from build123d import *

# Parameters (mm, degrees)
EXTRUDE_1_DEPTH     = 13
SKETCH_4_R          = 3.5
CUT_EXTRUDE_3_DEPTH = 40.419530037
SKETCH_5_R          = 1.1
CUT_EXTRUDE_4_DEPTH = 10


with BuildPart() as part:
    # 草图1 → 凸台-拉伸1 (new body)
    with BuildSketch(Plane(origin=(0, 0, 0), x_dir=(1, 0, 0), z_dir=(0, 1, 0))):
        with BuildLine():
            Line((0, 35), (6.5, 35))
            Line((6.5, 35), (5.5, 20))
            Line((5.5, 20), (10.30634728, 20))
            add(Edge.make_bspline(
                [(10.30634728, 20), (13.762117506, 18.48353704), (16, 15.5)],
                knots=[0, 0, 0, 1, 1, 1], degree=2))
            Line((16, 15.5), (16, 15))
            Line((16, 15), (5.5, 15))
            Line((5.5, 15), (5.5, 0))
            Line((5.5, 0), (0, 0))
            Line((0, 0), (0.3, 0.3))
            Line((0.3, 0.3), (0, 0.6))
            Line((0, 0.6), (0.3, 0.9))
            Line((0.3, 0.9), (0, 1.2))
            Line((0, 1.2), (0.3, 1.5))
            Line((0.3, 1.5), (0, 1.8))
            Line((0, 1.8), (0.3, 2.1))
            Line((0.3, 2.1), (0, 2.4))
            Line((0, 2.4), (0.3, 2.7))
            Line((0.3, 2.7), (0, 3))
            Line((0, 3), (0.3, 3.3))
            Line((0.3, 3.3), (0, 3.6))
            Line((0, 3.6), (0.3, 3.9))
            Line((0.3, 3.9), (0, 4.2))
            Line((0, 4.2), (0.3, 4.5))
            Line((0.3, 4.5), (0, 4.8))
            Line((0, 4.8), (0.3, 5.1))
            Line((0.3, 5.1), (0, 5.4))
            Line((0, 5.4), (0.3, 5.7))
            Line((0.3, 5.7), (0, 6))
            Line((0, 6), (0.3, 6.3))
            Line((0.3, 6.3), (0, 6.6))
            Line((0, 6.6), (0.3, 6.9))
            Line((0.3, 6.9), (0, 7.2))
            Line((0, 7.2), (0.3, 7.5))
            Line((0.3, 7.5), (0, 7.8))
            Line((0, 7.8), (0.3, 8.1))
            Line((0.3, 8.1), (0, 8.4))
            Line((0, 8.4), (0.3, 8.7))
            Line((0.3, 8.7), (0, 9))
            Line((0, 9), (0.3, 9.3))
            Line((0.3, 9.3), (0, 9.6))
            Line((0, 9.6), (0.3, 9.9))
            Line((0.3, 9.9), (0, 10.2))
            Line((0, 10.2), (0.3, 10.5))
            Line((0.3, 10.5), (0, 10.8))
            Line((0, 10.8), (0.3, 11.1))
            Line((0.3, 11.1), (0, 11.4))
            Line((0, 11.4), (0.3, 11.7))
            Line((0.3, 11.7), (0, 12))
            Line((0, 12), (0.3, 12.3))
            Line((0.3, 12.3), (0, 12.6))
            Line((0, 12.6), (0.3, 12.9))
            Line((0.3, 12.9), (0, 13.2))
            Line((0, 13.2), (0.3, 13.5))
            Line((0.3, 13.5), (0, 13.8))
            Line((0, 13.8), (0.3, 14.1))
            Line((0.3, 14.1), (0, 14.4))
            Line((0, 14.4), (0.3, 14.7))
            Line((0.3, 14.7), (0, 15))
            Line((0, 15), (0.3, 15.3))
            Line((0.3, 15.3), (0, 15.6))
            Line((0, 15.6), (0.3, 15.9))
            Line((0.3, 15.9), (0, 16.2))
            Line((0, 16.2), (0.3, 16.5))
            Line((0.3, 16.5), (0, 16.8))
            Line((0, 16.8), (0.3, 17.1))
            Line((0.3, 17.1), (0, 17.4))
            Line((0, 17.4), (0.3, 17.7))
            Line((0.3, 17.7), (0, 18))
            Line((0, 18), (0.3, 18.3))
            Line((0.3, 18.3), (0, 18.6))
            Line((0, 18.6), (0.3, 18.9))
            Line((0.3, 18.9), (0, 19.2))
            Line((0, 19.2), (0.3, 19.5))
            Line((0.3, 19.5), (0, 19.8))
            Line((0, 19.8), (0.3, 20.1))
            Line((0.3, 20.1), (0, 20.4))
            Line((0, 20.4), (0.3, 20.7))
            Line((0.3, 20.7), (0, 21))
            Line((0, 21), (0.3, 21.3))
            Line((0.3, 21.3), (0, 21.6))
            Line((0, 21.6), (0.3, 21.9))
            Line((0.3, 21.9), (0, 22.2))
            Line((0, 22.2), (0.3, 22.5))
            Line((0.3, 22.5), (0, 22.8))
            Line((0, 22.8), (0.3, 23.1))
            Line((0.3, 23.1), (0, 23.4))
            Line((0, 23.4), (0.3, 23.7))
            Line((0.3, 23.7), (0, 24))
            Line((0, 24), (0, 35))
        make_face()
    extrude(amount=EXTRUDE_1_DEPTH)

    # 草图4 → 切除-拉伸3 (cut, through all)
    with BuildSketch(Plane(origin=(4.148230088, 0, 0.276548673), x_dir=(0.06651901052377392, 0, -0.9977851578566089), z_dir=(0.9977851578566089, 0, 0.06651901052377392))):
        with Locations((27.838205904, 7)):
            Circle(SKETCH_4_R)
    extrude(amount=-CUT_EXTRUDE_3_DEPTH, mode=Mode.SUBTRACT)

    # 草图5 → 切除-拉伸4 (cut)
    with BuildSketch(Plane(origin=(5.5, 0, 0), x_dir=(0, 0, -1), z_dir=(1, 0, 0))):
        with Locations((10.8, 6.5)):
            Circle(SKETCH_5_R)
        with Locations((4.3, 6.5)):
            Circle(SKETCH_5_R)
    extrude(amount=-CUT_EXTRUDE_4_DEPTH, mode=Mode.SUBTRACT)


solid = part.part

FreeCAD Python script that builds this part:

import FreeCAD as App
import Part
import Sketcher
from FreeCAD import Vector
Q = App.Units.Quantity

doc = App.newDocument("Part")
body = doc.addObject("PartDesign::Body", "Body")

sketch1 = body.newObject("Sketcher::SketchObject", "Sketch")
sketch1.AttachmentSupport = (doc.getObject("XZ_Plane"), [""])
sketch1.MapMode = "FlatFace"
sketch1.addGeometry([
    Part.LineSegment(Vector(6.5, -35, 0), Vector(0, -35, 0)),
    Part.LineSegment(Vector(0, -35, 0), Vector(0, -24, 0)),
    Part.LineSegment(Vector(0, -24, 0), Vector(0.3, -23.7, 0)),
    Part.LineSegment(Vector(0.3, -23.7, 0), Vector(0, -23.4, 0)),
    Part.LineSegment(Vector(0, -23.4, 0), Vector(0.3, -23.1, 0)),
    Part.LineSegment(Vector(0.3, -23.1, 0), Vector(0, -22.8, 0)),
    Part.LineSegment(Vector(0, -22.8, 0), Vector(0.3, -22.5, 0)),
    Part.LineSegment(Vector(0.3, -22.5, 0), Vector(0, -22.2, 0)),
    Part.LineSegment(Vector(0, -22.2, 0), Vector(0.3, -21.9, 0)),
    Part.LineSegment(Vector(0.3, -21.9, 0), Vector(0, -21.6, 0)),
    Part.LineSegment(Vector(0, -21.6, 0), Vector(0.3, -21.3, 0)),
    Part.LineSegment(Vector(0.3, -21.3, 0), Vector(0, -21, 0)),
    Part.LineSegment(Vector(0, -21, 0), Vector(0.3, -20.7, 0)),
    Part.LineSegment(Vector(0.3, -20.7, 0), Vector(0, -20.4, 0)),
    Part.LineSegment(Vector(0, -20.4, 0), Vector(0.3, -20.1, 0)),
    Part.LineSegment(Vector(0.3, -20.1, 0), Vector(0, -19.8, 0)),
    Part.LineSegment(Vector(0, -19.8, 0), Vector(0.3, -19.5, 0)),
    Part.LineSegment(Vector(0.3, -19.5, 0), Vector(0, -19.2, 0)),
    Part.LineSegment(Vector(0, -19.2, 0), Vector(0.3, -18.9, 0)),
    Part.LineSegment(Vector(0.3, -18.9, 0), Vector(0, -18.6, 0)),
    Part.LineSegment(Vector(0, -18.6, 0), Vector(0.3, -18.3, 0)),
    Part.LineSegment(Vector(0.3, -18.3, 0), Vector(0, -18, 0)),
    Part.LineSegment(Vector(0, -18, 0), Vector(0.3, -17.7, 0)),
    Part.LineSegment(Vector(0.3, -17.7, 0), Vector(0, -17.4, 0)),
    Part.LineSegment(Vector(0, -17.4, 0), Vector(0.3, -17.1, 0)),
    Part.LineSegment(Vector(0.3, -17.1, 0), Vector(0, -16.8, 0)),
    Part.LineSegment(Vector(0, -16.8, 0), Vector(0.3, -16.5, 0)),
    Part.LineSegment(Vector(0.3, -16.5, 0), Vector(0, -16.2, 0)),
    Part.LineSegment(Vector(0, -16.2, 0), Vector(0.3, -15.9, 0)),
    Part.LineSegment(Vector(0.3, -15.9, 0), Vector(0, -15.6, 0)),
    Part.LineSegment(Vector(0, -15.6, 0), Vector(0.3, -15.3, 0)),
    Part.LineSegment(Vector(0.3, -15.3, 0), Vector(0, -15, 0)),
    Part.LineSegment(Vector(0, -15, 0), Vector(0.3, -14.7, 0)),
    Part.LineSegment(Vector(0.3, -14.7, 0), Vector(0, -14.4, 0)),
    Part.LineSegment(Vector(0, -14.4, 0), Vector(0.3, -14.1, 0)),
    Part.LineSegment(Vector(0.3, -14.1, 0), Vector(0, -13.8, 0)),
    Part.LineSegment(Vector(0, -13.8, 0), Vector(0.3, -13.5, 0)),
    Part.LineSegment(Vector(0.3, -13.5, 0), Vector(0, -13.2, 0)),
    Part.LineSegment(Vector(0, -13.2, 0), Vector(0.3, -12.9, 0)),
    Part.LineSegment(Vector(0.3, -12.9, 0), Vector(0, -12.6, 0)),
    Part.LineSegment(Vector(0, -12.6, 0), Vector(0.3, -12.3, 0)),
    Part.LineSegment(Vector(0.3, -12.3, 0), Vector(0, -12, 0)),
    Part.LineSegment(Vector(0, -12, 0), Vector(0.3, -11.7, 0)),
    Part.LineSegment(Vector(0.3, -11.7, 0), Vector(0, -11.4, 0)),
    Part.LineSegment(Vector(0, -11.4, 0), Vector(0.3, -11.1, 0)),
    Part.LineSegment(Vector(0.3, -11.1, 0), Vector(0, -10.8, 0)),
    Part.LineSegment(Vector(0, -10.8, 0), Vector(0.3, -10.5, 0)),
    Part.LineSegment(Vector(0.3, -10.5, 0), Vector(0, -10.2, 0)),
    Part.LineSegment(Vector(0, -10.2, 0), Vector(0.3, -9.9, 0)),
    Part.LineSegment(Vector(0.3, -9.9, 0), Vector(0, -9.6, 0)),
    Part.LineSegment(Vector(0, -9.6, 0), Vector(0.3, -9.3, 0)),
    Part.LineSegment(Vector(0.3, -9.3, 0), Vector(0, -9, 0)),
    Part.LineSegment(Vector(0, -9, 0), Vector(0.3, -8.7, 0)),
    Part.LineSegment(Vector(0.3, -8.7, 0), Vector(0, -8.4, 0)),
    Part.LineSegment(Vector(0, -8.4, 0), Vector(0.3, -8.1, 0)),
    Part.LineSegment(Vector(0.3, -8.1, 0), Vector(0, -7.8, 0)),
    Part.LineSegment(Vector(0, -7.8, 0), Vector(0.3, -7.5, 0)),
    Part.LineSegment(Vector(0.3, -7.5, 0), Vector(0, -7.2, 0)),
    Part.LineSegment(Vector(0, -7.2, 0), Vector(0.3, -6.9, 0)),
    Part.LineSegment(Vector(0.3, -6.9, 0), Vector(0, -6.6, 0)),
    Part.LineSegment(Vector(0, -6.6, 0), Vector(0.3, -6.3, 0)),
    Part.LineSegment(Vector(0.3, -6.3, 0), Vector(0, -6, 0)),
    Part.LineSegment(Vector(0, -6, 0), Vector(0.3, -5.7, 0)),
    Part.LineSegment(Vector(0.3, -5.7, 0), Vector(0, -5.4, 0)),
    Part.LineSegment(Vector(0, -5.4, 0), Vector(0.3, -5.1, 0)),
    Part.LineSegment(Vector(0.3, -5.1, 0), Vector(0, -4.8, 0)),
    Part.LineSegment(Vector(0, -4.8, 0), Vector(0.3, -4.5, 0)),
    Part.LineSegment(Vector(0.3, -4.5, 0), Vector(0, -4.2, 0)),
    Part.LineSegment(Vector(0, -4.2, 0), Vector(0.3, -3.9, 0)),
    Part.LineSegment(Vector(0.3, -3.9, 0), Vector(0, -3.6, 0)),
    Part.LineSegment(Vector(0, -3.6, 0), Vector(0.3, -3.3, 0)),
    Part.LineSegment(Vector(0.3, -3.3, 0), Vector(0, -3, 0)),
    Part.LineSegment(Vector(0, -3, 0), Vector(0.3, -2.7, 0)),
    Part.LineSegment(Vector(0.3, -2.7, 0), Vector(0, -2.4, 0)),
    Part.LineSegment(Vector(0, -2.4, 0), Vector(0.3, -2.1, 0)),
    Part.LineSegment(Vector(0.3, -2.1, 0), Vector(0, -1.8, 0)),
    Part.LineSegment(Vector(0, -1.8, 0), Vector(0.3, -1.5, 0)),
    Part.LineSegment(Vector(0.3, -1.5, 0), Vector(0, -1.2, 0)),
    Part.LineSegment(Vector(0, -1.2, 0), Vector(0.3, -0.9, 0)),
    Part.LineSegment(Vector(0.3, -0.9, 0), Vector(0, -0.6, 0)),
    Part.LineSegment(Vector(0, -0.6, 0), Vector(0.3, -0.3, 0)),
    Part.LineSegment(Vector(0.3, -0.3, 0), Vector(0, 0, 0)),
    Part.LineSegment(Vector(0, 0, 0), Vector(5.5, 0, 0)),
    Part.LineSegment(Vector(5.5, 0, 0), Vector(5.5, -15, 0)),
    Part.LineSegment(Vector(5.5, -15, 0), Vector(16, -15, 0)),
    Part.LineSegment(Vector(16, -15, 0), Vector(16, -15.5, 0)),
    Part.BSplineCurve([Vector(10.306347, -20, 0), Vector(13.762118, -18.483537, 0), Vector(16, -15.5, 0)], [3, 3], [0, 1], False, 2, [1, 1, 1], False),
    Part.LineSegment(Vector(10.306347, -20, 0), Vector(5.5, -20, 0)),
    Part.LineSegment(Vector(5.5, -20, 0), Vector(6.5, -35, 0)),
], False)
sketch1.addConstraint([
    Sketcher.Constraint("Block", 86),
    Sketcher.Constraint("Coincident", 0, 2, 1, 1),
    Sketcher.Constraint("Coincident", 1, 2, 2, 1),
    Sketcher.Constraint("Coincident", 2, 2, 3, 1),
    Sketcher.Constraint("Coincident", 3, 2, 4, 1),
    Sketcher.Constraint("Coincident", 4, 2, 5, 1),
    Sketcher.Constraint("Coincident", 5, 2, 6, 1),
    Sketcher.Constraint("Coincident", 6, 2, 7, 1),
    Sketcher.Constraint("Coincident", 7, 2, 8, 1),
    Sketcher.Constraint("Coincident", 8, 2, 9, 1),
    Sketcher.Constraint("Coincident", 9, 2, 10, 1),
    Sketcher.Constraint("Coincident", 10, 2, 11, 1),
    Sketcher.Constraint("Coincident", 11, 2, 12, 1),
    Sketcher.Constraint("Coincident", 12, 2, 13, 1),
    Sketcher.Constraint("Coincident", 13, 2, 14, 1),
    Sketcher.Constraint("Coincident", 14, 2, 15, 1),
    Sketcher.Constraint("Coincident", 15, 2, 16, 1),
    Sketcher.Constraint("Coincident", 16, 2, 17, 1),
    Sketcher.Constraint("Coincident", 17, 2, 18, 1),
    Sketcher.Constraint("Coincident", 18, 2, 19, 1),
    Sketcher.Constraint("Coincident", 19, 2, 20, 1),
    Sketcher.Constraint("Coincident", 20, 2, 21, 1),
    Sketcher.Constraint("Coincident", 21, 2, 22, 1),
    Sketcher.Constraint("Coincident", 22, 2, 23, 1),
    Sketcher.Constraint("Coincident", 23, 2, 24, 1),
    Sketcher.Constraint("Coincident", 24, 2, 25, 1),
    Sketcher.Constraint("Coincident", 25, 2, 26, 1),
    Sketcher.Constraint("Coincident", 26, 2, 27, 1),
    Sketcher.Constraint("Coincident", 27, 2, 28, 1),
    Sketcher.Constraint("Coincident", 28, 2, 29, 1),
    Sketcher.Constraint("Coincident", 29, 2, 30, 1),
    Sketcher.Constraint("Coincident", 30, 2, 31, 1),
    Sketcher.Constraint("Coincident", 31, 2, 32, 1),
    Sketcher.Constraint("Coincident", 32, 2, 33, 1),
    Sketcher.Constraint("Coincident", 33, 2, 34, 1),
    Sketcher.Constraint("Coincident", 34, 2, 35, 1),
    Sketcher.Constraint("Coincident", 35, 2, 36, 1),
    Sketcher.Constraint("Coincident", 36, 2, 37, 1),
    Sketcher.Constraint("Coincident", 37, 2, 38, 1),
    Sketcher.Constraint("Coincident", 38, 2, 39, 1),
    Sketcher.Constraint("Coincident", 39, 2, 40, 1),
    Sketcher.Constraint("Coincident", 40, 2, 41, 1),
    Sketcher.Constraint("Coincident", 41, 2, 42, 1),
    Sketcher.Constraint("Coincident", 42, 2, 43, 1),
    Sketcher.Constraint("Coincident", 43, 2, 44, 1),
    Sketcher.Constraint("Coincident", 44, 2, 45, 1),
    Sketcher.Constraint("Coincident", 45, 2, 46, 1),
    Sketcher.Constraint("Coincident", 46, 2, 47, 1),
    Sketcher.Constraint("Coincident", 47, 2, 48, 1),
    Sketcher.Constraint("Coincident", 48, 2, 49, 1),
    Sketcher.Constraint("Coincident", 49, 2, 50, 1),
    Sketcher.Constraint("Coincident", 50, 2, 51, 1),
    Sketcher.Constraint("Coincident", 51, 2, 52, 1),
    Sketcher.Constraint("Coincident", 52, 2, 53, 1),
    Sketcher.Constraint("Coincident", 53, 2, 54, 1),
    Sketcher.Constraint("Coincident", 54, 2, 55, 1),
    Sketcher.Constraint("Coincident", 55, 2, 56, 1),
    Sketcher.Constraint("Coincident", 56, 2, 57, 1),
    Sketcher.Constraint("Coincident", 57, 2, 58, 1),
    Sketcher.Constraint("Coincident", 58, 2, 59, 1),
    Sketcher.Constraint("Coincident", 59, 2, 60, 1),
    Sketcher.Constraint("Coincident", 60, 2, 61, 1),
    Sketcher.Constraint("Coincident", 61, 2, 62, 1),
    Sketcher.Constraint("Coincident", 62, 2, 63, 1),
    Sketcher.Constraint("Coincident", 63, 2, 64, 1),
    Sketcher.Constraint("Coincident", 64, 2, 65, 1),
    Sketcher.Constraint("Coincident", 65, 2, 66, 1),
    Sketcher.Constraint("Coincident", 66, 2, 67, 1),
    Sketcher.Constraint("Coincident", 67, 2, 68, 1),
    Sketcher.Constraint("Coincident", 68, 2, 69, 1),
    Sketcher.Constraint("Coincident", 69, 2, 70, 1),
    Sketcher.Constraint("Coincident", 70, 2, 71, 1),
    Sketcher.Constraint("Coincident", 71, 2, 72, 1),
    Sketcher.Constraint("Coincident", 72, 2, 73, 1),
    Sketcher.Constraint("Coincident", 73, 2, 74, 1),
    Sketcher.Constraint("Coincident", 74, 2, 75, 1),
    Sketcher.Constraint("Coincident", 75, 2, 76, 1),
    Sketcher.Constraint("Coincident", 76, 2, 77, 1),
    Sketcher.Constraint("Coincident", 77, 2, 78, 1),
    Sketcher.Constraint("Coincident", 78, 2, 79, 1),
    Sketcher.Constraint("Coincident", 79, 2, 80, 1),
    Sketcher.Constraint("Coincident", 80, 2, 81, 1),
    Sketcher.Constraint("Coincident", 81, 2, 82, 1),
    Sketcher.Constraint("Coincident", 82, 2, 83, 1),
    Sketcher.Constraint("Coincident", 83, 2, 84, 1),
    Sketcher.Constraint("Coincident", 84, 2, 85, 1),
    Sketcher.Constraint("Coincident", 85, 2, 86, 2),
    Sketcher.Constraint("Coincident", 86, 1, 87, 1),
    Sketcher.Constraint("Coincident", 87, 2, 88, 1),
    Sketcher.Constraint("Coincident", 88, 2, 0, 1),
    Sketcher.Constraint("Horizontal", 0),
    Sketcher.Constraint("Vertical", 1),
    Sketcher.Constraint("Horizontal", 82),
    Sketcher.Constraint("Vertical", 83),
    Sketcher.Constraint("Horizontal", 84),
    Sketcher.Constraint("Vertical", 85),
    Sketcher.Constraint("Horizontal", 87),
    Sketcher.Constraint("Coincident", 81, 2, -1, 1),
    Sketcher.Constraint("PointOnObject", 0, 2, -2),
    Sketcher.Constraint("PointOnObject", 3, 2, -2),
    Sketcher.Constraint("PointOnObject", 5, 2, -2),
    Sketcher.Constraint("PointOnObject", 7, 2, -2),
    Sketcher.Constraint("PointOnObject", 9, 2, -2),
    Sketcher.Constraint("PointOnObject", 11, 2, -2),
    Sketcher.Constraint("PointOnObject", 13, 2, -2),
    Sketcher.Constraint("PointOnObject", 15, 2, -2),
    Sketcher.Constraint("PointOnObject", 17, 2, -2),
    Sketcher.Constraint("PointOnObject", 19, 2, -2),
    Sketcher.Constraint("PointOnObject", 21, 2, -2),
    Sketcher.Constraint("PointOnObject", 23, 2, -2),
    Sketcher.Constraint("PointOnObject", 25, 2, -2),
    Sketcher.Constraint("PointOnObject", 27, 2, -2),
    Sketcher.Constraint("PointOnObject", 29, 2, -2),
    Sketcher.Constraint("PointOnObject", 31, 2, -2),
    Sketcher.Constraint("PointOnObject", 33, 2, -2),
    Sketcher.Constraint("PointOnObject", 35, 2, -2),
    Sketcher.Constraint("PointOnObject", 37, 2, -2),
    Sketcher.Constraint("PointOnObject", 39, 2, -2),
    Sketcher.Constraint("PointOnObject", 41, 2, -2),
    Sketcher.Constraint("PointOnObject", 43, 2, -2),
    Sketcher.Constraint("PointOnObject", 45, 2, -2),
    Sketcher.Constraint("PointOnObject", 47, 2, -2),
    Sketcher.Constraint("PointOnObject", 49, 2, -2),
    Sketcher.Constraint("PointOnObject", 51, 2, -2),
    Sketcher.Constraint("PointOnObject", 53, 2, -2),
    Sketcher.Constraint("PointOnObject", 55, 2, -2),
    Sketcher.Constraint("PointOnObject", 57, 2, -2),
    Sketcher.Constraint("PointOnObject", 59, 2, -2),
    Sketcher.Constraint("PointOnObject", 61, 2, -2),
    Sketcher.Constraint("PointOnObject", 63, 2, -2),
    Sketcher.Constraint("PointOnObject", 65, 2, -2),
    Sketcher.Constraint("PointOnObject", 67, 2, -2),
    Sketcher.Constraint("PointOnObject", 69, 2, -2),
    Sketcher.Constraint("PointOnObject", 71, 2, -2),
    Sketcher.Constraint("PointOnObject", 73, 2, -2),
    Sketcher.Constraint("PointOnObject", 75, 2, -2),
    Sketcher.Constraint("PointOnObject", 77, 2, -2),
    Sketcher.Constraint("PointOnObject", 79, 2, -2),
    Sketcher.Constraint("Perpendicular", 2, 3),
    Sketcher.Constraint("Perpendicular", 3, 4),
    Sketcher.Constraint("Perpendicular", 4, 5),
    Sketcher.Constraint("Perpendicular", 5, 6),
    Sketcher.Constraint("Perpendicular", 6, 7),
    Sketcher.Constraint("Perpendicular", 7, 8),
    Sketcher.Constraint("Perpendicular", 8, 9),
    Sketcher.Constraint("Perpendicular", 9, 10),
    Sketcher.Constraint("Perpendicular", 10, 11),
    Sketcher.Constraint("Perpendicular", 11, 12),
    Sketcher.Constraint("Perpendicular", 12, 13),
    Sketcher.Constraint("Perpendicular", 13, 14),
    Sketcher.Constraint("Perpendicular", 14, 15),
    Sketcher.Constraint("Perpendicular", 15, 16),
    Sketcher.Constraint("Perpendicular", 16, 17),
    Sketcher.Constraint("Perpendicular", 17, 18),
    Sketcher.Constraint("Perpendicular", 18, 19),
    Sketcher.Constraint("Perpendicular", 19, 20),
    Sketcher.Constraint("Perpendicular", 20, 21),
    Sketcher.Constraint("Perpendicular", 21, 22),
    Sketcher.Constraint("Perpendicular", 22, 23),
    Sketcher.Constraint("Perpendicular", 23, 24),
    Sketcher.Constraint("Perpendicular", 24, 25),
    Sketcher.Constraint("Perpendicular", 25, 26),
    Sketcher.Constraint("Perpendicular", 26, 27),
    Sketcher.Constraint("Perpendicular", 27, 28),
    Sketcher.Constraint("Perpendicular", 28, 29),
    Sketcher.Constraint("Perpendicular", 29, 30),
    Sketcher.Constraint("Perpendicular", 30, 31),
    Sketcher.Constraint("Perpendicular", 31, 32),
    Sketcher.Constraint("Perpendicular", 32, 33),
    Sketcher.Constraint("Perpendicular", 33, 34),
    Sketcher.Constraint("Perpendicular", 34, 35),
    Sketcher.Constraint("Perpendicular", 35, 36),
    Sketcher.Constraint("Perpendicular", 36, 37),
    Sketcher.Constraint("Perpendicular", 37, 38),
    Sketcher.Constraint("Perpendicular", 38, 39),
    Sketcher.Constraint("Perpendicular", 39, 40),
    Sketcher.Constraint("Perpendicular", 40, 41),
    Sketcher.Constraint("Perpendicular", 41, 42),
    Sketcher.Constraint("Perpendicular", 42, 43),
    Sketcher.Constraint("Perpendicular", 43, 44),
    Sketcher.Constraint("Perpendicular", 44, 45),
    Sketcher.Constraint("Perpendicular", 45, 46),
    Sketcher.Constraint("Perpendicular", 46, 47),
    Sketcher.Constraint("Perpendicular", 47, 48),
    Sketcher.Constraint("Perpendicular", 48, 49),
    Sketcher.Constraint("Perpendicular", 49, 50),
    Sketcher.Constraint("Perpendicular", 50, 51),
    Sketcher.Constraint("Perpendicular", 51, 52),
    Sketcher.Constraint("Perpendicular", 52, 53),
    Sketcher.Constraint("Perpendicular", 53, 54),
    Sketcher.Constraint("Perpendicular", 54, 55),
    Sketcher.Constraint("Perpendicular", 55, 56),
    Sketcher.Constraint("Perpendicular", 56, 57),
    Sketcher.Constraint("Perpendicular", 57, 58),
    Sketcher.Constraint("Perpendicular", 58, 59),
    Sketcher.Constraint("Perpendicular", 59, 60),
    Sketcher.Constraint("Perpendicular", 60, 61),
    Sketcher.Constraint("Perpendicular", 61, 62),
    Sketcher.Constraint("Perpendicular", 62, 63),
    Sketcher.Constraint("Perpendicular", 63, 64),
    Sketcher.Constraint("Perpendicular", 64, 65),
    Sketcher.Constraint("Perpendicular", 65, 66),
    Sketcher.Constraint("Perpendicular", 66, 67),
    Sketcher.Constraint("Perpendicular", 67, 68),
    Sketcher.Constraint("Perpendicular", 68, 69),
    Sketcher.Constraint("Perpendicular", 69, 70),
    Sketcher.Constraint("Perpendicular", 70, 71),
    Sketcher.Constraint("Perpendicular", 71, 72),
    Sketcher.Constraint("Perpendicular", 72, 73),
    Sketcher.Constraint("Perpendicular", 73, 74),
    Sketcher.Constraint("Perpendicular", 74, 75),
    Sketcher.Constraint("Perpendicular", 75, 76),
    Sketcher.Constraint("Perpendicular", 76, 77),
    Sketcher.Constraint("Perpendicular", 77, 78),
    Sketcher.Constraint("Perpendicular", 78, 79),
    Sketcher.Constraint("Perpendicular", 79, 80),
    Sketcher.Constraint("Perpendicular", 80, 81),
    Sketcher.Constraint("Horizontal", 31, 2, 83, 2),
    Sketcher.Constraint("Vertical", 2, 2, 4, 2),
    Sketcher.Constraint("Vertical", 4, 2, 6, 2),
    Sketcher.Constraint("Vertical", 6, 2, 8, 2),
    Sketcher.Constraint("Vertical", 8, 2, 10, 2),
    Sketcher.Constraint("Vertical", 10, 2, 12, 2),
    Sketcher.Constraint("Vertical", 12, 2, 14, 2),
    Sketcher.Constraint("Vertical", 14, 2, 16, 2),
    Sketcher.Constraint("Vertical", 16, 2, 18, 2),
    Sketcher.Constraint("Vertical", 18, 2, 20, 2),
    Sketcher.Constraint("Vertical", 20, 2, 22, 2),
    Sketcher.Constraint("Vertical", 22, 2, 24, 2),
    Sketcher.Constraint("Vertical", 24, 2, 26, 2),
    Sketcher.Constraint("Vertical", 26, 2, 28, 2),
    Sketcher.Constraint("Vertical", 28, 2, 30, 2),
    Sketcher.Constraint("Vertical", 30, 2, 32, 2),
    Sketcher.Constraint("Vertical", 32, 2, 34, 2),
    Sketcher.Constraint("Vertical", 34, 2, 36, 2),
    Sketcher.Constraint("Vertical", 36, 2, 38, 2),
    Sketcher.Constraint("Vertical", 38, 2, 40, 2),
    Sketcher.Constraint("Vertical", 40, 2, 42, 2),
    Sketcher.Constraint("Vertical", 42, 2, 44, 2),
    Sketcher.Constraint("Vertical", 44, 2, 46, 2),
    Sketcher.Constraint("Vertical", 46, 2, 48, 2),
    Sketcher.Constraint("Vertical", 48, 2, 50, 2),
    Sketcher.Constraint("Vertical", 50, 2, 52, 2),
    Sketcher.Constraint("Vertical", 52, 2, 54, 2),
    Sketcher.Constraint("Vertical", 54, 2, 56, 2),
    Sketcher.Constraint("Vertical", 56, 2, 58, 2),
    Sketcher.Constraint("Vertical", 58, 2, 60, 2),
    Sketcher.Constraint("Vertical", 60, 2, 62, 2),
    Sketcher.Constraint("Vertical", 62, 2, 64, 2),
    Sketcher.Constraint("Vertical", 64, 2, 66, 2),
    Sketcher.Constraint("Vertical", 66, 2, 68, 2),
    Sketcher.Constraint("Vertical", 68, 2, 70, 2),
    Sketcher.Constraint("Vertical", 70, 2, 72, 2),
    Sketcher.Constraint("Vertical", 72, 2, 74, 2),
    Sketcher.Constraint("Vertical", 74, 2, 76, 2),
    Sketcher.Constraint("Vertical", 76, 2, 78, 2),
    Sketcher.Constraint("Vertical", 78, 2, 80, 2),
    Sketcher.Constraint("Vertical", 83, 2, 87, 2),
    Sketcher.Constraint("Equal", 2, 3),
    Sketcher.Constraint("DistanceY", 1, 1, 1, 2, Q("11 mm")),
    Sketcher.Constraint("DistanceY", 83, 2, 83, 1, Q("15 mm")),
    Sketcher.Constraint("DistanceX", 0, 2, 0, 1, Q("6.5 mm")),
    Sketcher.Constraint("DistanceX", 82, 1, 82, 2, Q("5.5 mm")),
])
pad1 = body.newObject("PartDesign::Pad", "Pad")
pad1.Profile = sketch1
pad1.Length = 13
pad1.Reversed = True

sketch2 = body.newObject("Sketcher::SketchObject", "Sketch001")
sketch2.Placement = App.Placement(Vector(4.14823, 0, 0.276549), App.Rotation(Vector(0.066519011, 0, -0.997785158), Vector(0, 1, 0), Vector(0.997785158, 0, 0.066519011), "ZXY"))
sketch2.addGeometry(Part.Circle(Vector(27.8, 7, 0), Vector(0, 0, 1), 3.5), False)
sketch2.addConstraint([
    Sketcher.Constraint("Diameter", 0, Q("7 mm")),
    Sketcher.Constraint("DistanceY", -1, 1, 0, 3, Q("7 mm")),
    Sketcher.Constraint("DistanceX", -1, 1, 0, 3, Q("27.838206 mm")),
])
pocket1 = body.newObject("PartDesign::Pocket", "Pocket")
pocket1.Profile = sketch2
pocket1.Type = "ThroughAll"

sketch3 = body.newObject("Sketcher::SketchObject", "Sketch002")
sketch3.AttachmentSupport = (doc.getObject("YZ_Plane"), [""])
sketch3.MapMode = "FlatFace"
sketch3.AttachmentOffset = App.Placement(Vector(0, 0, 5.5), App.Rotation())
sketch3.addGeometry([
    Part.Circle(Vector(6.5, -10.8, 0), Vector(0, 0, 1), 1.1),
    Part.Circle(Vector(6.5, -4.3, 0), Vector(0, 0, 1), 1.1),
], False)
sketch3.addConstraint([
    Sketcher.Constraint("Equal", 0, 1),
    Sketcher.Constraint("Vertical", 0, 3, 1, 3),
    Sketcher.Constraint("Diameter", 0, Q("2.2 mm")),
    Sketcher.Constraint("DistanceX", -1, 1, 0, 3, Q("6.5 mm")),
    Sketcher.Constraint("DistanceY", 0, 3, -1, 1, Q("10.8 mm")),
    Sketcher.Constraint("DistanceY", 1, 3, -1, 1, Q("4.3 mm")),
])
pocket2 = body.newObject("PartDesign::Pocket", "Pocket001")
pocket2.Profile = sketch3
pocket2.Length = 10

doc.recompute()
